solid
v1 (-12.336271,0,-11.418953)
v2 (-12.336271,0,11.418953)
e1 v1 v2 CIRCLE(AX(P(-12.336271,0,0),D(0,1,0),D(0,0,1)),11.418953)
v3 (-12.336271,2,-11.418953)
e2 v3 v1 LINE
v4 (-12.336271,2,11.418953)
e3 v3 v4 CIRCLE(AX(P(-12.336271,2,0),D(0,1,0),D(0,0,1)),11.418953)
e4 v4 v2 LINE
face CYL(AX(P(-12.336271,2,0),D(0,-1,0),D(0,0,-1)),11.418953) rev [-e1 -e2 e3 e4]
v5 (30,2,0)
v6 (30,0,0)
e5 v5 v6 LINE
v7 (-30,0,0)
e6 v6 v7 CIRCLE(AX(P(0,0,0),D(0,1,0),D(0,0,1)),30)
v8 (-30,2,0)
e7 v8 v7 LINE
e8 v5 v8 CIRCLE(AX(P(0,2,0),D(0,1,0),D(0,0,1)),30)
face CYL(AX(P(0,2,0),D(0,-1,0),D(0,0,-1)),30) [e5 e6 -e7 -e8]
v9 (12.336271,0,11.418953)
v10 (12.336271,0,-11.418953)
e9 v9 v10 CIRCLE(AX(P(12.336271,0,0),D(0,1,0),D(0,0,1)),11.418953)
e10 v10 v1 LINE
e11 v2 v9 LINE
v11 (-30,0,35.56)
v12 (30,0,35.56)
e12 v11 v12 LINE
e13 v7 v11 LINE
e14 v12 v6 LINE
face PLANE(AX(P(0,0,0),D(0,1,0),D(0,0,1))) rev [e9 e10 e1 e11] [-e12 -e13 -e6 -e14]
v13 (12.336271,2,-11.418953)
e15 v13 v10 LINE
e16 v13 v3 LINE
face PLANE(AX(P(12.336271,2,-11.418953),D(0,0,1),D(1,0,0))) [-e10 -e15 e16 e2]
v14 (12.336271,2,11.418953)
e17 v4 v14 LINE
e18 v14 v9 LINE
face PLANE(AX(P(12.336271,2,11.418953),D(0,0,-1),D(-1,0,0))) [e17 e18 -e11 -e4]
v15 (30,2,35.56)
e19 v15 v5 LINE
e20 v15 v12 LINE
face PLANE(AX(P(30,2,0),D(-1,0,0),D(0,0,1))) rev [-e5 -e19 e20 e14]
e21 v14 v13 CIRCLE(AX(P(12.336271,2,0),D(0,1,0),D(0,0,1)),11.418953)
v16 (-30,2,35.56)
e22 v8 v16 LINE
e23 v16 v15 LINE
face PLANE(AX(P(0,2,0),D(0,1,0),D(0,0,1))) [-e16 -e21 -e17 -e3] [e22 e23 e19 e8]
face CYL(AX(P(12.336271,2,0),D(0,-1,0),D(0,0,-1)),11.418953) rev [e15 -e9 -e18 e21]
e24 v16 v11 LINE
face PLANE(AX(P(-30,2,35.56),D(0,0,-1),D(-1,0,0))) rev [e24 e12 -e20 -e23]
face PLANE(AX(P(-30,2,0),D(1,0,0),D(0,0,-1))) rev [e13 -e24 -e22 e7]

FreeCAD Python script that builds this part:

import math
import FreeCAD as App
import Part
import Sketcher
from FreeCAD import Vector
Q = App.Units.Quantity

doc = App.newDocument("Part")
params = doc.addObject("Spreadsheet::Sheet", "Params")
for row, (alias, value) in enumerate([
    ("sketch1_radius", "30 mm"),
    ("sketch1_height", "35.56 mm"),
    ("pad1_length", "2 mm"),
], start=1):
    params.set(f"A{row}", alias)
    params.set(f"B{row}", "=" + value)
    params.setAlias(f"B{row}", alias)

body = doc.addObject("PartDesign::Body", "Body")

# Sketch on XZ plane
sketch1 = body.newObject("Sketcher::SketchObject", "Sketch")
sketch1.AttachmentSupport = (doc.getObject("XZ_Plane"), [""])
sketch1.MapMode = "FlatFace"
sketch1.addGeometry([
    Part.LineSegment(Vector(-30, 0, 0), Vector(-30, 36, 0)),  # 0
    Part.LineSegment(Vector(-30, 36, 0), Vector(30, 36, 0)),  # 1
    Part.LineSegment(Vector(30, 36, 0), Vector(30, 0, 0)),  # 2
    Part.ArcOfCircle(Part.Circle(Vector(0, 0, 0), Vector(0, 0, 1), 30), math.radians(180), math.radians(360)),  # 3
    Part.ArcOfCircle(Part.Circle(Vector(12, 0, 0), Vector(0, 0, 1), 11), math.radians(-90), math.radians(90)),  # 4
    Part.LineSegment(Vector(12, 11, 0), Vector(-12, 11, 0)),  # 5
    Part.ArcOfCircle(Part.Circle(Vector(-12, 0, 0), Vector(0, 0, 1), 11), math.radians(90), math.radians(270)),  # 6
    Part.LineSegment(Vector(-12, -11, 0), Vector(12, -11, 0)),  # 7
], False)
sketch1.addConstraint([
    Sketcher.Constraint("Coincident", 0, 2, 1, 1),
    Sketcher.Constraint("Coincident", 1, 2, 2, 1),
    Sketcher.Constraint("Tangent", 2, 2, 3, 2),
    Sketcher.Constraint("Tangent", 3, 1, 0, 1),
    Sketcher.Constraint("Tangent", 4, 2, 5, 1),
    Sketcher.Constraint("Tangent", 5, 2, 6, 1),
    Sketcher.Constraint("Tangent", 6, 2, 7, 1),
    Sketcher.Constraint("Tangent", 7, 2, 4, 1),
    Sketcher.Constraint("Vertical", 0),
    Sketcher.Constraint("Horizontal", 1),
    Sketcher.Constraint("Vertical", 2),
    Sketcher.Constraint("Horizontal", 5),
    Sketcher.Constraint("Horizontal", 7),
    Sketcher.Constraint("Coincident", 3, 3, -1, 1),
    Sketcher.Constraint("Symmetric", 4, 3, 6, 3, -1, 1),
    Sketcher.Constraint("Radius", 3, Q("30 mm")),
    Sketcher.Constraint("DistanceY", 0, 1, 0, 2, Q("35.56 mm")),
    Sketcher.Constraint("Radius", 4, Q("11.418953 mm")),
    Sketcher.Constraint("DistanceX", 5, 2, 5, 1, Q("24.672541 mm")),
])
sketch1.setExpression("Constraints[15]", "Params.sketch1_radius")
sketch1.setExpression("Constraints[16]", "Params.sketch1_height")
pad1 = body.newObject("PartDesign::Pad", "Pad")
pad1.Profile = sketch1
pad1.setExpression("Length", "Params.pad1_length")
pad1.Reversed = True

doc.recompute()
